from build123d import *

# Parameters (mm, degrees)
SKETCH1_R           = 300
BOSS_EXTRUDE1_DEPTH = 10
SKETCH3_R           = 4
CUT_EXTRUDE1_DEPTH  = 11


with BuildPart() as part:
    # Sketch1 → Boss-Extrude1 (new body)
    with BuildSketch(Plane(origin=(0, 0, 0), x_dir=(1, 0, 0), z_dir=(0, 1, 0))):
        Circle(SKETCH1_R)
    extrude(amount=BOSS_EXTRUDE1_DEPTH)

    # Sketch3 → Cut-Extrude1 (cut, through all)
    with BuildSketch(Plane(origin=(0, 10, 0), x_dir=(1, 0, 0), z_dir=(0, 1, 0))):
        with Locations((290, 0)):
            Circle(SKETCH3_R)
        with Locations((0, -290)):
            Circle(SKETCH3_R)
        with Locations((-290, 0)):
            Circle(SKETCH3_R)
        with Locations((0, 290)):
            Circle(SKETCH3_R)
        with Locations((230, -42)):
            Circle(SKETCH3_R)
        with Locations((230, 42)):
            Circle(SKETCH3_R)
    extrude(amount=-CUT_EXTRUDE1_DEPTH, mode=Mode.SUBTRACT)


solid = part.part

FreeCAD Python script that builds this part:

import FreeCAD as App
import Part
import Sketcher

V = App.Vector
Q = App.Units.Quantity

doc = App.newDocument("Part")
body = doc.addObject("PartDesign::Body", "Body")

# Sketch on XZ plane
sketch1 = body.newObject("Sketcher::SketchObject", "Sketch")
sketch1.AttachmentSupport = (doc.getObject("XZ_Plane"), [""])
sketch1.MapMode = "FlatFace"
sketch1.addGeometry(Part.Circle(V(0, 0, 0), V(0, 0, 1), 300), False)
sketch1.addConstraint(Sketcher.Constraint("Coincident", 0, 3, -1, 1))
sketch1.addConstraint(Sketcher.Constraint("Diameter", 0, Q("600 mm")))
pad1 = body.newObject("PartDesign::Pad", "Pad")
pad1.Profile = sketch1
pad1.Length = 10
pad1.Reversed = True

# Sketch on XZ plane
sketch2 = body.newObject("Sketcher::SketchObject", "Sketch001")
sketch2.AttachmentSupport = (doc.getObject("XZ_Plane"), [""])
sketch2.MapMode = "FlatFace"
sketch2.AttachmentOffset = App.Placement(V(0, 0, -10), App.Rotation())
sketch2.addGeometry(Part.Circle(V(290, 0, 0), V(0, 0, 1), 4), False)
sketch2.addGeometry(Part.Circle(V(0, 290, 0), V(0, 0, 1), 4), False)
sketch2.addGeometry(Part.Circle(V(-290, 0, 0), V(0, 0, 1), 4), False)
sketch2.addGeometry(Part.Circle(V(0, -290, 0), V(0, 0, 1), 4), False)
sketch2.addGeometry(Part.Circle(V(230, 42, 0), V(0, 0, 1), 4), False)
sketch2.addGeometry(Part.Circle(V(230, -42, 0), V(0, 0, 1), 4), False)
sketch2.addConstraint(Sketcher.Constraint("Equal", 0, 1))
sketch2.addConstraint(Sketcher.Constraint("Equal", 1, 2))
sketch2.addConstraint(Sketcher.Constraint("Equal", 2, 3))
sketch2.addConstraint(Sketcher.Constraint("Equal", 3, 4))
sketch2.addConstraint(Sketcher.Constraint("Equal", 4, 5))
sketch2.addConstraint(Sketcher.Constraint("Symmetric", 0, 3, 2, 3, -1, 1))
sketch2.addConstraint(Sketcher.Constraint("Symmetric", 1, 3, 3, 3, -1, 1))
sketch2.addConstraint(Sketcher.Constraint("Symmetric", 4, 3, 5, 3, -1))
sketch2.addConstraint(Sketcher.Constraint("PointOnObject", 0, 3, -1))
sketch2.addConstraint(Sketcher.Constraint("PointOnObject", 1, 3, -2))
sketch2.addConstraint(Sketcher.Constraint("Diameter", 0, Q("8 mm")))
sketch2.addConstraint(Sketcher.Constraint("DistanceX", -1, 1, 0, 3, Q("290 mm")))
sketch2.addConstraint(Sketcher.Constraint("DistanceY", -1, 1, 1, 3, Q("290 mm")))
sketch2.addConstraint(Sketcher.Constraint("DistanceX", -1, 1, 4, 3, Q("230 mm")))
sketch2.addConstraint(Sketcher.Constraint("DistanceY", -1, 1, 4, 3, Q("42 mm")))
pocket1 = body.newObject("PartDesign::Pocket", "Pocket")
pocket1.Profile = sketch2
pocket1.Type = "ThroughAll"
pocket1.Reversed = True

doc.recompute()
